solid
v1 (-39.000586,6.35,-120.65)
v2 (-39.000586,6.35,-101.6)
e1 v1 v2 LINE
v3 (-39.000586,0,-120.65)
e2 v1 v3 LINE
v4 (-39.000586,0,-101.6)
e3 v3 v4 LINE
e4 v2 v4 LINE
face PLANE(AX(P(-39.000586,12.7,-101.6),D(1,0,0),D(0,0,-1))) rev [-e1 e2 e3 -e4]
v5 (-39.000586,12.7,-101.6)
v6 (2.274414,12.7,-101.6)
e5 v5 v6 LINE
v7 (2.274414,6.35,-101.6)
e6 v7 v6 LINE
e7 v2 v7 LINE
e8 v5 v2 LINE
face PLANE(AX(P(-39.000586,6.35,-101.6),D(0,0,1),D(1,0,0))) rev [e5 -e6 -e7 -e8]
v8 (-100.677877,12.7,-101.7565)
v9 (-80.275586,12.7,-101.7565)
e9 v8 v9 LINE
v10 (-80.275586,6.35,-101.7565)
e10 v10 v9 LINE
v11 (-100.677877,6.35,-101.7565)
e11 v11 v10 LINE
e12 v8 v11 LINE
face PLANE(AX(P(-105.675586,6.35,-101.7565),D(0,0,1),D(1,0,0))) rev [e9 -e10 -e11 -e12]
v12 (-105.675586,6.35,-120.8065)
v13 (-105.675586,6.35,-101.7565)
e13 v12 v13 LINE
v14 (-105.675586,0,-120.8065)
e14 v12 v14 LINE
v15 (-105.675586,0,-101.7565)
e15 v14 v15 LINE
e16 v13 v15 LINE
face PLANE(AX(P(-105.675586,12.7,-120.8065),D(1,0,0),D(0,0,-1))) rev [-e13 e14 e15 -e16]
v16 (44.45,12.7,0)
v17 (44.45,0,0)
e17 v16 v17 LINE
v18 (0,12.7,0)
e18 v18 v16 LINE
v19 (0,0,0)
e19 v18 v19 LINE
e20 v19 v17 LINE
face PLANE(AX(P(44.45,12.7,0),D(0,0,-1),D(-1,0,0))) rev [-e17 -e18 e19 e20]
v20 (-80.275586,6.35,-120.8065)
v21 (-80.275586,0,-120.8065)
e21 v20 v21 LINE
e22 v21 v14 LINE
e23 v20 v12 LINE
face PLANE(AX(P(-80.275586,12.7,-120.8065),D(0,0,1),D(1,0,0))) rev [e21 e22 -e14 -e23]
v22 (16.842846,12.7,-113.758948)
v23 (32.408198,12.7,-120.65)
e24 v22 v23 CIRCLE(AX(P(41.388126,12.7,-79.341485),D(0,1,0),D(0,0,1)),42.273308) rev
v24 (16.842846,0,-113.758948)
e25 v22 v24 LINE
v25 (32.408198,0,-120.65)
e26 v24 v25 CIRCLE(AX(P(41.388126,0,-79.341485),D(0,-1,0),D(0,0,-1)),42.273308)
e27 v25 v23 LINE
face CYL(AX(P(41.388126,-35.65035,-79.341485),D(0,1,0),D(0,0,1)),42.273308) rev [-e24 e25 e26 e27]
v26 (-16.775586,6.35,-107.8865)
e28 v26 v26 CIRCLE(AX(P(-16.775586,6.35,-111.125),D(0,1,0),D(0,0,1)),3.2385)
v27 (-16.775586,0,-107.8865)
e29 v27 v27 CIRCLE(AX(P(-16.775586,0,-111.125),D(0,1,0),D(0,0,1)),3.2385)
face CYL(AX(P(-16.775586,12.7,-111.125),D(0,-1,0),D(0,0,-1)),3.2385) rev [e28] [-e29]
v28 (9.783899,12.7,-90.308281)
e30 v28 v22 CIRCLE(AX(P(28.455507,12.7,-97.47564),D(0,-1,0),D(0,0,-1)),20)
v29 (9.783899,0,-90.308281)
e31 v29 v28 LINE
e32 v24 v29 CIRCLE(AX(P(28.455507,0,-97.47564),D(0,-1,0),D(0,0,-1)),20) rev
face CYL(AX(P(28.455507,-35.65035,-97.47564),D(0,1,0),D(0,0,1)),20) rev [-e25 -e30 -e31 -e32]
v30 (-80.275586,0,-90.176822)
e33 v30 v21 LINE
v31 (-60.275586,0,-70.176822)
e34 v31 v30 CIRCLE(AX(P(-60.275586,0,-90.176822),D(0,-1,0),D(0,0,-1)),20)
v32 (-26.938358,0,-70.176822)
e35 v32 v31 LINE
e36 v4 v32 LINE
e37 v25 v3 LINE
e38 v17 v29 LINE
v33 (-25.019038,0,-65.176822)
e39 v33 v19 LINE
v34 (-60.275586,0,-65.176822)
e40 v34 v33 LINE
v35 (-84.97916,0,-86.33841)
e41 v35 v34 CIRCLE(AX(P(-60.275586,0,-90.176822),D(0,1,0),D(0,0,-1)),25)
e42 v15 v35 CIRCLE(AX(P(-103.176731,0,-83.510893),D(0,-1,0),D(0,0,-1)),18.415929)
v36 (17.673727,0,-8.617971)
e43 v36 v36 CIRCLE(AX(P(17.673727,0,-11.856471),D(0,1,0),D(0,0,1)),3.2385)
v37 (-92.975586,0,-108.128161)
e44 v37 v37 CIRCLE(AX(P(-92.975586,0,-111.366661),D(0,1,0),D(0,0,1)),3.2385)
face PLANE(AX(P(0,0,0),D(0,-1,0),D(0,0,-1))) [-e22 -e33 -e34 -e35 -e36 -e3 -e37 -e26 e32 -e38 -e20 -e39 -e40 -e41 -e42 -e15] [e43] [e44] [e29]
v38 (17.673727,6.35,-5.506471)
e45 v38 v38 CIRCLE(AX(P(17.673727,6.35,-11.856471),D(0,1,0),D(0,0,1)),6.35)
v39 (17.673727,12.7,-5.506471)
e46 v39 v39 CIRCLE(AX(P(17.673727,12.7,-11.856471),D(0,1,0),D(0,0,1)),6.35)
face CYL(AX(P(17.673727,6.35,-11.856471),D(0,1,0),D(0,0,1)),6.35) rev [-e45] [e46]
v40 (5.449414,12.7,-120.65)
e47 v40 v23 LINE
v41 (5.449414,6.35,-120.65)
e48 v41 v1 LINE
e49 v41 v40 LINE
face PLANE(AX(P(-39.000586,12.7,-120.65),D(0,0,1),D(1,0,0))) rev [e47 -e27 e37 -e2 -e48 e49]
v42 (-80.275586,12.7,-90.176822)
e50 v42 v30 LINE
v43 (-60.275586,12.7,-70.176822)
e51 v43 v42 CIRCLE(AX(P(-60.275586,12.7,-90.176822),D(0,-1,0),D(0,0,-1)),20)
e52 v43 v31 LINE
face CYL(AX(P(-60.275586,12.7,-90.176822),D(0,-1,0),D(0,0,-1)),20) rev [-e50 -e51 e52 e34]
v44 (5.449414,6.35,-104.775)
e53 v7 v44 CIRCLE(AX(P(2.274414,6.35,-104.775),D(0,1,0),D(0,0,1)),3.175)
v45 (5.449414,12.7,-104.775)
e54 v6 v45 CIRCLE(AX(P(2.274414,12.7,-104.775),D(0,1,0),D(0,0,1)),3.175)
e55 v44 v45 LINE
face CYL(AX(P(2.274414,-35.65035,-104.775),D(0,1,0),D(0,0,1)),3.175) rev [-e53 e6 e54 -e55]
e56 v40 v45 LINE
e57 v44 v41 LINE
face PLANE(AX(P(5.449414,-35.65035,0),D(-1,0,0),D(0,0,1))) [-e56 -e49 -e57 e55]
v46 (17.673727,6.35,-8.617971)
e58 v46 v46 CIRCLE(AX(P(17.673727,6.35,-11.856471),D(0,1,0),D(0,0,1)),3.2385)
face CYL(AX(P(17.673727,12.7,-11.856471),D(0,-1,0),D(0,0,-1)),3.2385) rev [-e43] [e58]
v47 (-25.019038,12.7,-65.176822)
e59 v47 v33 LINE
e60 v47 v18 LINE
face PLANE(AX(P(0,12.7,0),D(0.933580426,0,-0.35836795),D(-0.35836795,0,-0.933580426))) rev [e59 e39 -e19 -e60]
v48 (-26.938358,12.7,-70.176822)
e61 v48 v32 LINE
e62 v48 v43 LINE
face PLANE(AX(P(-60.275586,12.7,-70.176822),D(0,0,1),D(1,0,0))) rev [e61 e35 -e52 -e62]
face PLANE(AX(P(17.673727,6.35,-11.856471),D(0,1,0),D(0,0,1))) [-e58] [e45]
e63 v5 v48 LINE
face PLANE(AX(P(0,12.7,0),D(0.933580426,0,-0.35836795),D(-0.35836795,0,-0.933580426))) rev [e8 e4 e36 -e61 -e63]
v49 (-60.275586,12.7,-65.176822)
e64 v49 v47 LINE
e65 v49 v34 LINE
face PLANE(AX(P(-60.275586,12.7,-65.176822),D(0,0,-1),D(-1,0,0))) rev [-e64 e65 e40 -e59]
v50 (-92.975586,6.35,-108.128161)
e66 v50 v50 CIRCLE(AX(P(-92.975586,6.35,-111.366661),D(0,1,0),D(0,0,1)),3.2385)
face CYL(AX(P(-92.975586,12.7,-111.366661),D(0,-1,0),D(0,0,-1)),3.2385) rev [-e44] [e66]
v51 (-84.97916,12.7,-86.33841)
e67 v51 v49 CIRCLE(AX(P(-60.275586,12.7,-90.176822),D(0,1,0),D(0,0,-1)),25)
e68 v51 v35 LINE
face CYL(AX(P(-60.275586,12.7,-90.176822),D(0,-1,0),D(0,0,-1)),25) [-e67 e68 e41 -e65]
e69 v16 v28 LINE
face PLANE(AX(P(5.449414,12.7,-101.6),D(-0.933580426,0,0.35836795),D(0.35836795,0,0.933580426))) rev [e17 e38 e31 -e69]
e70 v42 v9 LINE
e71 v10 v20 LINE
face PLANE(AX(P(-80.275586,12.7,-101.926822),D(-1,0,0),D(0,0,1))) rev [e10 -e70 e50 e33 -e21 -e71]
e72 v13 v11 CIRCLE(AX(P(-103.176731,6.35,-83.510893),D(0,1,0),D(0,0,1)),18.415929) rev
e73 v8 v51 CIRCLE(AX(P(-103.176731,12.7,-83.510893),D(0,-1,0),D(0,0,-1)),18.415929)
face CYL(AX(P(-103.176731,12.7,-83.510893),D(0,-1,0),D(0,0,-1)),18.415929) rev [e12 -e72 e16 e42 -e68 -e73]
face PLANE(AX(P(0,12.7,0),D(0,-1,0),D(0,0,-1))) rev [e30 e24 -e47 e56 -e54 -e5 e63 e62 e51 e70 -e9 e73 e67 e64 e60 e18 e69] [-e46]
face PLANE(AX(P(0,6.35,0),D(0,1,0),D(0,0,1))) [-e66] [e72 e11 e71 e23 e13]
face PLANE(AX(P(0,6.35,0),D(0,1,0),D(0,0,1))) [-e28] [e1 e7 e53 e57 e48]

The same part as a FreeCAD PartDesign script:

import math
import FreeCAD as App
import Part
import Sketcher
Q = App.Units.Quantity


def edges_at(feature, points):
    """Names of the edges that pass closest to the given points."""
    edges = feature.Shape.Edges
    near = lambda p: min(range(len(edges)), key=lambda i: edges[i].distToShape(Part.Vertex(*p))[0])
    return sorted({f"Edge{near(p) + 1}" for p in points})

doc = App.newDocument("Part")
params = doc.addObject("Spreadsheet::Sheet", "Params")
for row, (alias, value) in enumerate([
    ("sketch1_diameter", "0.255 in"),
    ("sketch1_width", "1.75 in"),
    ("sketch1_height", "0.75 in"),
    ("pad1_length", "0.5 in"),
    ("sketch2_diameter", "0.5 in"),
    ("sketch2_width", "1.75 in"),
    ("sketch2_height", "0.75 in"),
    ("pocket1_length", "0.25 in"),
    ("sketch3_radius", "0.125 in"),
    ("sketch3_height", "0.625 in"),
    ("pad2_length", "0.5 in"),
    ("fillet_radius", "20 mm"),
    ("sketch4_width", "1 in"),
    ("sketch4_diameter", "0.255 in"),
    ("sketch4_height", "0.75 in"),
    ("pad3_length", "0.5 in"),
    ("sketch5_width", "1 in"),
    ("sketch5_height", "0.75 in"),
    ("pocket2_length", "0.25 in"),
], start=1):
    params.set(f"A{row}", alias)
    params.set(f"B{row}", "=" + value)
    params.setAlias(f"B{row}", alias)

body = doc.addObject("PartDesign::Body", "Body")

sketch1 = doc.addObject("Sketcher::SketchObject", "Sketch")
body.addObject(sketch1)
sketch1.AttachmentSupport = (doc.XZ_Plane, [""])
sketch1.MapMode = "FlatFace"
sketch1.addGeometry(Part.LineSegment(App.Vector(-39, -101.6, 0), App.Vector(0, 0, 0)), False)
sketch1.addGeometry(Part.LineSegment(App.Vector(0, 0, 0), App.Vector(44.5, 0, 0)), False)
sketch1.addGeometry(Part.LineSegment(App.Vector(44.5, 0, 0), App.Vector(5.4, -101.6, 0)), False)
sketch1.addGeometry(Part.LineSegment(App.Vector(5.4, -101.6, 0), App.Vector(5.4, -120.7, 0)), False)
sketch1.addGeometry(Part.LineSegment(App.Vector(5.4, -120.7, 0), App.Vector(-39, -120.7, 0)), False)
sketch1.addGeometry(Part.LineSegment(App.Vector(-39, -120.7, 0), App.Vector(-39, -101.6, 0)), False)
sketch1.addGeometry(Part.Circle(App.Vector(17.7, -11.9, 0), App.Vector(0, 0, 1), 3.2), False)
sketch1.addGeometry(Part.Circle(App.Vector(-16.8, -111.1, 0), App.Vector(0, 0, 1), 3.2), False)
sketch1.addConstraint(Sketcher.Constraint("Coincident", 0, 2, 1, 1))
sketch1.addConstraint(Sketcher.Constraint("Coincident", 1, 2, 2, 1))
sketch1.addConstraint(Sketcher.Constraint("Coincident", 2, 2, 3, 1))
sketch1.addConstraint(Sketcher.Constraint("Coincident", 3, 2, 4, 1))
sketch1.addConstraint(Sketcher.Constraint("Coincident", 4, 2, 5, 1))
sketch1.addConstraint(Sketcher.Constraint("Coincident", 5, 2, 0, 1))
sketch1.addConstraint(Sketcher.Constraint("Horizontal", 1))
sketch1.addConstraint(Sketcher.Constraint("Vertical", 3))
sketch1.addConstraint(Sketcher.Constraint("Horizontal", 4))
sketch1.addConstraint(Sketcher.Constraint("Vertical", 5))
sketch1.addConstraint(Sketcher.Constraint("Coincident", 0, 2, -1, 1))
sketch1.addConstraint(Sketcher.Constraint("Equal", 6, 7))
sketch1.addConstraint(Sketcher.Constraint("Parallel", 0, 2))
sketch1.addConstraint(Sketcher.Constraint("Horizontal", 2, 2, 5, 2))
sketch1.addConstraint(Sketcher.Constraint("Diameter", 6, Q("0.255 in")))
sketch1.addConstraint(Sketcher.Constraint("DistanceY", 2, 2, -1, 1, Q("4 in")))
sketch1.addConstraint(Sketcher.Constraint("Angle", 0, Q("69 deg")))
sketch1.addConstraint(Sketcher.Constraint("DistanceX", 1, 1, 1, 2, Q("1.75 in")))
sketch1.addConstraint(Sketcher.Constraint("DistanceY", 3, 2, 3, 1, Q("0.75 in")))
sketch1.addConstraint(Sketcher.Constraint("DistanceY", 7, 3, -1, 1, Q("4.375 in")))
sketch1.addConstraint(Sketcher.Constraint("DistanceX", 7, 3, 2, 2, Q("0.875 in")))
sketch1.addConstraint(Sketcher.Constraint("DistanceY", 6, 3, -1, 1, Q("11.856471 mm")))
sketch1.addConstraint(Sketcher.Constraint("DistanceX", -1, 1, 6, 3, Q("17.673727 mm")))
sketch1.setExpression("Constraints[14]", "Params.sketch1_diameter")
sketch1.setExpression("Constraints[17]", "Params.sketch1_width")
sketch1.setExpression("Constraints[18]", "Params.sketch1_height")
pad1 = doc.addObject("PartDesign::Pad", "Pad")
body.addObject(pad1)
pad1.Profile = sketch1
pad1.setExpression("Length", "Params.pad1_length")
pad1.Reversed = True

sketch2 = doc.addObject("Sketcher::SketchObject", "Sketch001")
body.addObject(sketch2)
sketch2.AttachmentSupport = (doc.XZ_Plane, [""])
sketch2.MapMode = "FlatFace"
sketch2.AttachmentOffset = App.Placement(App.Vector(0, 0, -0.5 * 25.4), App.Rotation())
sketch2.addGeometry(Part.Circle(App.Vector(18, -12, 0), App.Vector(0, 0, 1), 6), False)
sketch2.addGeometry(Part.LineSegment(App.Vector(-39, -121, 0), App.Vector(-39, -102, 0)), False)
sketch2.addGeometry(Part.LineSegment(App.Vector(-39, -102, 0), App.Vector(5, -102, 0)), False)
sketch2.addGeometry(Part.LineSegment(App.Vector(5, -102, 0), App.Vector(5, -121, 0)), False)
sketch2.addGeometry(Part.LineSegment(App.Vector(5, -121, 0), App.Vector(-39, -121, 0)), False)
sketch2.addConstraint(Sketcher.Constraint("Coincident", 1, 2, 2, 1))
sketch2.addConstraint(Sketcher.Constraint("Coincident", 2, 2, 3, 1))
sketch2.addConstraint(Sketcher.Constraint("Coincident", 3, 2, 4, 1))
sketch2.addConstraint(Sketcher.Constraint("Coincident", 4, 2, 1, 1))
sketch2.addConstraint(Sketcher.Constraint("Vertical", 1))
sketch2.addConstraint(Sketcher.Constraint("Horizontal", 2))
sketch2.addConstraint(Sketcher.Constraint("Vertical", 3))
sketch2.addConstraint(Sketcher.Constraint("Horizontal", 4))
sketch2.addConstraint(Sketcher.Constraint("Diameter", 0, Q("0.5 in")))
sketch2.addConstraint(Sketcher.Constraint("DistanceY", 1, 2, -1, 1, Q("4 in")))
sketch2.addConstraint(Sketcher.Constraint("DistanceX", 2, 1, 2, 2, Q("1.75 in")))
sketch2.addConstraint(Sketcher.Constraint("DistanceY", 1, 1, 1, 2, Q("0.75 in")))
sketch2.addConstraint(Sketcher.Constraint("DistanceY", 0, 3, -1, 1, Q("11.856471 mm")))
sketch2.addConstraint(Sketcher.Constraint("DistanceX", -1, 1, 0, 3, Q("17.673727 mm")))
sketch2.addConstraint(Sketcher.Constraint("DistanceX", 1, 2, -1, 1, Q("39.000586 mm")))
sketch2.setExpression("Constraints[8]", "Params.sketch2_diameter")
sketch2.setExpression("Constraints[10]", "Params.sketch2_width")
sketch2.setExpression("Constraints[11]", "Params.sketch2_height")
pocket1 = doc.addObject("PartDesign::Pocket", "Pocket")
body.addObject(pocket1)
pocket1.Profile = sketch2
pocket1.setExpression("Length", "Params.pocket1_length")
pocket1.Reversed = True

sketch3 = doc.addObject("Sketcher::SketchObject", "Sketch002")
body.addObject(sketch3)
sketch3.AttachmentSupport = (doc.XZ_Plane, [""])
sketch3.MapMode = "FlatFace"
sketch3.AttachmentOffset = App.Placement(App.Vector(0, 0, -0.5 * 25.4), App.Rotation())
sketch3.addGeometry(Part.LineSegment(App.Vector(32.4, -120.7, 0), App.Vector(5.4, -120.7, 0)), False)
sketch3.addGeometry(Part.LineSegment(App.Vector(5.4, -120.7, 0), App.Vector(5.4, -104.8, 0)), False)
sketch3.addGeometry(Part.ArcOfCircle(Part.Circle(App.Vector(2.3, -104.8, 0), App.Vector(0, 0, 1), 3.2), math.radians(0), math.radians(90)), False)
sketch3.addGeometry(Part.LineSegment(App.Vector(2.3, -101.6, 0), App.Vector(5.4, -101.6, 0)), False)
sketch3.addGeometry(Part.ArcOfCircle(Part.Circle(App.Vector(41.4, -79.3, 0), App.Vector(0, 0, 1), 42.3), math.radians(-148), math.radians(-102)), False)
sketch3.addConstraint(Sketcher.Constraint("Coincident", 0, 2, 1, 1))
sketch3.addConstraint(Sketcher.Constraint("Tangent", 1, 2, 2, 1))
sketch3.addConstraint(Sketcher.Constraint("Tangent", 2, 2, 3, 1))
sketch3.addConstraint(Sketcher.Constraint("Coincident", 3, 2, 4, 1))
sketch3.addConstraint(Sketcher.Constraint("Coincident", 4, 2, 0, 1))
sketch3.addConstraint(Sketcher.Constraint("Horizontal", 0))
sketch3.addConstraint(Sketcher.Constraint("Vertical", 1))
sketch3.addConstraint(Sketcher.Constraint("Horizontal", 3))
sketch3.addConstraint(Sketcher.Constraint("Vertical", 1, 2, 3, 2))
sketch3.addConstraint(Sketcher.Constraint("DistanceY", 2, 2, -1, 1, Q("4 in")))
sketch3.addConstraint(Sketcher.Constraint("Radius", 2, Q("0.125 in")))
sketch3.addConstraint(Sketcher.Constraint("DistanceY", 1, 1, 1, 2, Q("0.625 in")))
sketch3.addConstraint(Sketcher.Constraint("Radius", 4, Q("42.273308 mm")))
sketch3.addConstraint(Sketcher.Constraint("DistanceX", 0, 2, 0, 1, Q("26.958784 mm")))
sketch3.addConstraint(Sketcher.Constraint("DistanceX", -1, 1, 2, 3, Q("2.274414 mm")))
sketch3.setExpression("Constraints[10]", "Params.sketch3_radius")
sketch3.setExpression("Constraints[11]", "Params.sketch3_height")
pad2 = doc.addObject("PartDesign::Pad", "Pad001")
body.addObject(pad2)
pad2.Profile = sketch3
pad2.setExpression("Length", "Params.pad2_length")
doc.recompute()

fillet = doc.addObject("PartDesign::Fillet", "Fillet")
body.addObject(fillet)
fillet.Base = (pad2, edges_at(pad2, [(5.449, 6.35, -101.6)]))
fillet.setExpression("Radius", "Params.fillet_radius")

sketch4 = doc.addObject("Sketcher::SketchObject", "Sketch003")
body.addObject(sketch4)
sketch4.AttachmentSupport = (doc.XZ_Plane, [""])
sketch4.MapMode = "FlatFace"
sketch4.addGeometry(Part.ArcOfCircle(Part.Circle(App.Vector(-60.3, -90.2, 0), App.Vector(0, 0, 1), 20), math.radians(90), math.radians(180)), False)
sketch4.addGeometry(Part.LineSegment(App.Vector(-80.3, -90.2, 0), App.Vector(-80.3, -120.8, 0)), False)
sketch4.addGeometry(Part.LineSegment(App.Vector(-80.3, -120.8, 0), App.Vector(-105.7, -120.8, 0)), False)
sketch4.addGeometry(Part.LineSegment(App.Vector(-105.7, -120.8, 0), App.Vector(-105.7, -101.8, 0)), False)
sketch4.addGeometry(Part.ArcOfCircle(Part.Circle(App.Vector(-103.2, -83.5, 0), App.Vector(0, 0, 1), 18.4), math.radians(-98), math.radians(-9)), False)
sketch4.addGeometry(Part.ArcOfCircle(Part.Circle(App.Vector(-60.3, -90.2, 0), App.Vector(0, 0, 1), 25), math.radians(90), math.radians(171)), False)
sketch4.addGeometry(Part.LineSegment(App.Vector(-60.3, -65.2, 0), App.Vector(-25, -65.2, 0)), False)
sketch4.addGeometry(Part.LineSegment(App.Vector(-25, -65.2, 0), App.Vector(-26.9, -70.2, 0)), False)
sketch4.addGeometry(Part.LineSegment(App.Vector(-26.9, -70.2, 0), App.Vector(-60.3, -70.2, 0)), False)
sketch4.addGeometry(Part.Circle(App.Vector(-93, -111.4, 0), App.Vector(0, 0, 1), 3.2), False)
sketch4.addConstraint(Sketcher.Constraint("Tangent", 0, 2, 1, 1))
sketch4.addConstraint(Sketcher.Constraint("Coincident", 1, 2, 2, 1))
sketch4.addConstraint(Sketcher.Constraint("Coincident", 2, 2, 3, 1))
sketch4.addConstraint(Sketcher.Constraint("Coincident", 3, 2, 4, 1))
sketch4.addConstraint(Sketcher.Constraint("Tangent", 4, 2, 5, 2))
sketch4.addConstraint(Sketcher.Constraint("Tangent", 5, 1, 6, 1))
sketch4.addConstraint(Sketcher.Constraint("Coincident", 6, 2, 7, 1))
sketch4.addConstraint(Sketcher.Constraint("Coincident", 7, 2, 8, 1))
sketch4.addConstraint(Sketcher.Constraint("Tangent", 8, 2, 0, 1))
sketch4.addConstraint(Sketcher.Constraint("Vertical", 1))
sketch4.addConstraint(Sketcher.Constraint("Horizontal", 2))
sketch4.addConstraint(Sketcher.Constraint("Vertical", 3))
sketch4.addConstraint(Sketcher.Constraint("Horizontal", 6))
sketch4.addConstraint(Sketcher.Constraint("Horizontal", 8))
sketch4.addConstraint(Sketcher.Constraint("Coincident", 5, 3, 0, 3))
sketch4.addConstraint(Sketcher.Constraint("DistanceX", 2, 2, 2, 1, Q("1 in")))
sketch4.addConstraint(Sketcher.Constraint("Diameter", 9, Q("0.255 in")))
sketch4.addConstraint(Sketcher.Constraint("Angle", 7, Q("-111 deg")))
sketch4.addConstraint(Sketcher.Constraint("DistanceY", 3, 1, 3, 2, Q("0.75 in")))
sketch4.addConstraint(Sketcher.Constraint("DistanceX", 9, 3, 0, 2, Q("0.5 in")))
sketch4.addConstraint(Sketcher.Constraint("Radius", 0, Q("20 mm")))
sketch4.addConstraint(Sketcher.Constraint("Radius", 5, Q("25 mm")))
sketch4.addConstraint(Sketcher.Constraint("Radius", 4, Q("18.415929 mm")))
sketch4.addConstraint(Sketcher.Constraint("DistanceX", 6, 1, 6, 2, Q("35.256548 mm")))
sketch4.addConstraint(Sketcher.Constraint("DistanceY", 1, 2, -1, 1, Q("120.8065 mm")))
sketch4.addConstraint(Sketcher.Constraint("DistanceY", 1, 2, 1, 1, Q("30.629678 mm")))
sketch4.addConstraint(Sketcher.Constraint("DistanceX", 4, 3, -1, 1, Q("103.176731 mm")))
sketch4.addConstraint(Sketcher.Constraint("DistanceY", 9, 3, -1, 1, Q("111.366661 mm")))
sketch4.setExpression("Constraints[15]", "Params.sketch4_width")
sketch4.setExpression("Constraints[16]", "Params.sketch4_diameter")
sketch4.setExpression("Constraints[18]", "Params.sketch4_height")
pad3 = doc.addObject("PartDesign::Pad", "Pad002")
body.addObject(pad3)
pad3.Profile = sketch4
pad3.setExpression("Length", "Params.pad3_length")
pad3.Reversed = True

sketch5 = doc.addObject("Sketcher::SketchObject", "Sketch004")
body.addObject(sketch5)
sketch5.AttachmentSupport = (doc.XZ_Plane, [""])
sketch5.MapMode = "FlatFace"
sketch5.AttachmentOffset = App.Placement(App.Vector(0, 0, -0.5 * 25.4), App.Rotation())
sketch5.addGeometry(Part.LineSegment(App.Vector(-106, -121, 0), App.Vector(-106, -102, 0)), False)
sketch5.addGeometry(Part.LineSegment(App.Vector(-106, -102, 0), App.Vector(-80, -102, 0)), False)
sketch5.addGeometry(Part.LineSegment(App.Vector(-80, -102, 0), App.Vector(-80, -121, 0)), False)
sketch5.addGeometry(Part.LineSegment(App.Vector(-80, -121, 0), App.Vector(-106, -121, 0)), False)
sketch5.addConstraint(Sketcher.Constraint("Coincident", 0, 2, 1, 1))
sketch5.addConstraint(Sketcher.Constraint("Coincident", 1, 2, 2, 1))
sketch5.addConstraint(Sketcher.Constraint("Coincident", 2, 2, 3, 1))
sketch5.addConstraint(Sketcher.Constraint("Coincident", 3, 2, 0, 1))
sketch5.addConstraint(Sketcher.Constraint("Vertical", 0))
sketch5.addConstraint(Sketcher.Constraint("Horizontal", 1))
sketch5.addConstraint(Sketcher.Constraint("Vertical", 2))
sketch5.addConstraint(Sketcher.Constraint("Horizontal", 3))
sketch5.addConstraint(Sketcher.Constraint("DistanceX", 1, 1, 1, 2, Q("1 in")))
sketch5.addConstraint(Sketcher.Constraint("DistanceY", 0, 1, 0, 2, Q("0.75 in")))
sketch5.addConstraint(Sketcher.Constraint("DistanceY", 0, 2, -1, 1, Q("101.7565 mm")))
sketch5.addConstraint(Sketcher.Constraint("DistanceX", 0, 2, -1, 1, Q("105.675586 mm")))
sketch5.setExpression("Constraints[8]", "Params.sketch5_width")
sketch5.setExpression("Constraints[9]", "Params.sketch5_height")
pocket2 = doc.addObject("PartDesign::Pocket", "Pocket001")
body.addObject(pocket2)
pocket2.Profile = sketch5
pocket2.setExpression("Length", "Params.pocket2_length")
pocket2.Reversed = True

doc.recompute()
